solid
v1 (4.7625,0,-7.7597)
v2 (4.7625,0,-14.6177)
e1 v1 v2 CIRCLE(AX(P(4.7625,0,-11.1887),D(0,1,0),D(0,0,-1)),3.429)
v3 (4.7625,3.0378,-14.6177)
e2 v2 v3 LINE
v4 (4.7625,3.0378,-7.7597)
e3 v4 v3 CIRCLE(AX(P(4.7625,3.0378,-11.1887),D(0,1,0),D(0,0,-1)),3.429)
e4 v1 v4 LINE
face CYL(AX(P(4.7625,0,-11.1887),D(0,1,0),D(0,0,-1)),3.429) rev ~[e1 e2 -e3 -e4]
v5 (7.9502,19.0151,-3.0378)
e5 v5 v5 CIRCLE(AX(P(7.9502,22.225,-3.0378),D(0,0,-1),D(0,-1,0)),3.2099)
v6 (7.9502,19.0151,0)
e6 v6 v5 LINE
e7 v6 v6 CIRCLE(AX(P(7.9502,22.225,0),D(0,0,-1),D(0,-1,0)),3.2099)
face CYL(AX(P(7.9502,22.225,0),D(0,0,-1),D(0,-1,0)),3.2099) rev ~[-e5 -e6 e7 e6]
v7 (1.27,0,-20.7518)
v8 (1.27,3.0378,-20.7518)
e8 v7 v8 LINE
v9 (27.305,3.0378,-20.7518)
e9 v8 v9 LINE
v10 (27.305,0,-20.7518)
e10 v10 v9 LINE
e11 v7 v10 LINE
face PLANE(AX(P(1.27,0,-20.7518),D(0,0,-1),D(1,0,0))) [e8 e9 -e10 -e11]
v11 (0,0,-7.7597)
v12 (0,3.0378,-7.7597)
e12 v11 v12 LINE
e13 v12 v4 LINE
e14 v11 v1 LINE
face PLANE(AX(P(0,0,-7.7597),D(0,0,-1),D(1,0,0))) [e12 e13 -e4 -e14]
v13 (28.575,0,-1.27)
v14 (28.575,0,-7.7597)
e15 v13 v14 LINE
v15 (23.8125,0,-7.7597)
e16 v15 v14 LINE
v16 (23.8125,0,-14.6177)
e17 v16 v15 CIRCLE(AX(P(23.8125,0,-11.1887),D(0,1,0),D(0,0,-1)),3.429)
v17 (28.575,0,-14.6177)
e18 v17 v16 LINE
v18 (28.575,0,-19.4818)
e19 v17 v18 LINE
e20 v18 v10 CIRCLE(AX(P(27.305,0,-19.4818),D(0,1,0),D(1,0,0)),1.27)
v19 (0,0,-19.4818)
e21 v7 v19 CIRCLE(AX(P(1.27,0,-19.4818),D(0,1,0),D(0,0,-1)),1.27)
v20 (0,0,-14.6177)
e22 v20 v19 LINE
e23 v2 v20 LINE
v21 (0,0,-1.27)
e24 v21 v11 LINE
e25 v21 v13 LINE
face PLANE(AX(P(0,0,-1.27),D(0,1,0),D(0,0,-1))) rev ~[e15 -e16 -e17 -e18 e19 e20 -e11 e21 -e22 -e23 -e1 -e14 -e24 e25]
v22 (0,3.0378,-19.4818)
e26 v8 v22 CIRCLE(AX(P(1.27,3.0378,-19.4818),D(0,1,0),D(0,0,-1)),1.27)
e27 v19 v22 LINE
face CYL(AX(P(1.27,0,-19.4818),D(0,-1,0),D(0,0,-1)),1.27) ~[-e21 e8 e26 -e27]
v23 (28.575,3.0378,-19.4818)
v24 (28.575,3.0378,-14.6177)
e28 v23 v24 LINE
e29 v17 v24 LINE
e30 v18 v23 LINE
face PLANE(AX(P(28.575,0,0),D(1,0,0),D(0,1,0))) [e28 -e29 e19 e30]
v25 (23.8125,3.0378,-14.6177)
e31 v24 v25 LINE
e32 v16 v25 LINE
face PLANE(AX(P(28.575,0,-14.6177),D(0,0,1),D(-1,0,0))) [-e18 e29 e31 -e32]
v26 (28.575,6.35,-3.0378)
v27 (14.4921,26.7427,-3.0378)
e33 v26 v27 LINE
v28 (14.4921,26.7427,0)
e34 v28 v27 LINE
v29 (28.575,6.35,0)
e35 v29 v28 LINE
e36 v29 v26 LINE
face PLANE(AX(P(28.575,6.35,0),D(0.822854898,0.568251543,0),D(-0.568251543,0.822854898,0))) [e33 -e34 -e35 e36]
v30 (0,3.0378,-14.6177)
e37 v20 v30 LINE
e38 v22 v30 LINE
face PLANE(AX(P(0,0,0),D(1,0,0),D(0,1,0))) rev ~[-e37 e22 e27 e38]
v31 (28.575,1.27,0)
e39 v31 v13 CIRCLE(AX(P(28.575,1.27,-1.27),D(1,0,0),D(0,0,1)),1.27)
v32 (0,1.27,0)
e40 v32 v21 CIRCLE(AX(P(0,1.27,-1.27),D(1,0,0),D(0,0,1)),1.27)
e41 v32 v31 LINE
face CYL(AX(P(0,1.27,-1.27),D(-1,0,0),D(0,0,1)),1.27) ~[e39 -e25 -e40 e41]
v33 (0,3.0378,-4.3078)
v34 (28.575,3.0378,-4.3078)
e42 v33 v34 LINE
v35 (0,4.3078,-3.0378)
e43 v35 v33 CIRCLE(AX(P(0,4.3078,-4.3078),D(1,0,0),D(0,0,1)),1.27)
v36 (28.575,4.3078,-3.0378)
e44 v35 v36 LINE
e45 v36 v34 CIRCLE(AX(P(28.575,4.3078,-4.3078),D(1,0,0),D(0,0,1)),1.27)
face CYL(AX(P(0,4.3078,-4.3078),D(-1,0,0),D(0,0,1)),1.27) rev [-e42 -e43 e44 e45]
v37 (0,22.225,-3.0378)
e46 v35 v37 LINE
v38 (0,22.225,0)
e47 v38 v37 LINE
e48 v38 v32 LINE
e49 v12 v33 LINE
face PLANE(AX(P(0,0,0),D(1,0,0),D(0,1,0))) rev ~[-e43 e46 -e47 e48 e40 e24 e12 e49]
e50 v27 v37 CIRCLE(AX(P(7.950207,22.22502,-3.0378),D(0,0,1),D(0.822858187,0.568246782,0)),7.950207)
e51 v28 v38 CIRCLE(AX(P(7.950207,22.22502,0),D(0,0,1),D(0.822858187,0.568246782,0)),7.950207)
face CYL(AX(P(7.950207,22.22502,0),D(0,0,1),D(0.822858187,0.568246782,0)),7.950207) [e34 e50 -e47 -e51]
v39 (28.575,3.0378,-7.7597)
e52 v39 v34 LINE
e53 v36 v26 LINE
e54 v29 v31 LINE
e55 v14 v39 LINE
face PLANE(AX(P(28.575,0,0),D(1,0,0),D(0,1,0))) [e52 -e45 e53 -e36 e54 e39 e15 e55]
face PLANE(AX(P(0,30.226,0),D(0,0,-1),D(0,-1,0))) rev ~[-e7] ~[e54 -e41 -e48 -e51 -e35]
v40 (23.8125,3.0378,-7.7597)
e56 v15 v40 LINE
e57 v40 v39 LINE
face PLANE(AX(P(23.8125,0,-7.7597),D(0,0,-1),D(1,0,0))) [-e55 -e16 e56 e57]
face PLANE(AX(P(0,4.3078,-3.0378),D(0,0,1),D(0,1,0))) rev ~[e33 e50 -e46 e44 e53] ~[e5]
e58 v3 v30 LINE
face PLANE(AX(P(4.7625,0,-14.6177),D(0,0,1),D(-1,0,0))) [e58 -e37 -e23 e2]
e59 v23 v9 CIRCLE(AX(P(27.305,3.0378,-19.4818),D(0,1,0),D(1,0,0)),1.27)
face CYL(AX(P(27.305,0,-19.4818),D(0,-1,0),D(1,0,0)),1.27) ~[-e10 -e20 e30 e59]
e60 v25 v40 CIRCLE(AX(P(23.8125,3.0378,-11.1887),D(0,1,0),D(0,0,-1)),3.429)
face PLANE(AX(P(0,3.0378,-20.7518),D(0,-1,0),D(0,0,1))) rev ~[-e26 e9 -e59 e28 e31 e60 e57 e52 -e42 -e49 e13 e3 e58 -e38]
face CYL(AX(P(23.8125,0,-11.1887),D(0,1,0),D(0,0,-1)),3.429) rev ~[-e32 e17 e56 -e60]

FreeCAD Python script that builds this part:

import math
import FreeCAD as App
import Part
import Sketcher
from FreeCAD import Vector
Q = App.Units.Quantity

doc = App.newDocument("Part")
body = doc.addObject("PartDesign::Body", "Body")

sketch1 = body.newObject("Sketcher::SketchObject", "Sketch")
sketch1.AttachmentSupport = (doc.getObject("YZ_Plane"), [""])
sketch1.MapMode = "FlatFace"
sketch1.addGeometry(Part.LineSegment(Vector(30.226, -3.0378, 0), Vector(30.226, 0, 0)), False)
sketch1.addGeometry(Part.LineSegment(Vector(30.226, 0, 0), Vector(1.27, 0, 0)), False)
sketch1.addGeometry(Part.ArcOfCircle(Part.Circle(Vector(1.27, -1.27, 0), Vector(0, 0, 1), 1.27), math.radians(90), math.radians(180)), False)
sketch1.addGeometry(Part.LineSegment(Vector(0, -1.27, 0), Vector(0, -20.7518, 0)), False)
sketch1.addGeometry(Part.LineSegment(Vector(0, -20.7518, 0), Vector(3.0378, -20.7518, 0)), False)
sketch1.addGeometry(Part.LineSegment(Vector(3.0378, -20.7518, 0), Vector(3.0378, -4.3078, 0)), False)
sketch1.addGeometry(Part.ArcOfCircle(Part.Circle(Vector(4.3078, -4.3078, 0), Vector(0, 0, 1), 1.27), math.radians(90), math.radians(180)), False)
sketch1.addGeometry(Part.LineSegment(Vector(4.3078, -3.0378, 0), Vector(30.226, -3.0378, 0)), False)
sketch1.addConstraint(Sketcher.Constraint("Coincident", 0, 2, 1, 1))
sketch1.addConstraint(Sketcher.Constraint("Tangent", 1, 2, 2, 1))
sketch1.addConstraint(Sketcher.Constraint("Tangent", 2, 2, 3, 1))
sketch1.addConstraint(Sketcher.Constraint("Coincident", 3, 2, 4, 1))
sketch1.addConstraint(Sketcher.Constraint("Coincident", 4, 2, 5, 1))
sketch1.addConstraint(Sketcher.Constraint("Tangent", 5, 2, 6, 2))
sketch1.addConstraint(Sketcher.Constraint("Tangent", 6, 1, 7, 1))
sketch1.addConstraint(Sketcher.Constraint("Coincident", 7, 2, 0, 1))
sketch1.addConstraint(Sketcher.Constraint("Vertical", 0))
sketch1.addConstraint(Sketcher.Constraint("Horizontal", 1))
sketch1.addConstraint(Sketcher.Constraint("Vertical", 3))
sketch1.addConstraint(Sketcher.Constraint("Horizontal", 4))
sketch1.addConstraint(Sketcher.Constraint("Vertical", 5))
sketch1.addConstraint(Sketcher.Constraint("Horizontal", 7))
sketch1.addConstraint(Sketcher.Constraint("Equal", 2, 6))
sketch1.addConstraint(Sketcher.Constraint("PointOnObject", 0, 2, -1))
sketch1.addConstraint(Sketcher.Constraint("PointOnObject", 2, 2, -2))
sketch1.addConstraint(Sketcher.Constraint("Equal", 4, 0))
sketch1.addConstraint(Sketcher.Constraint("Radius", 2, Q("0.05 in")))
sketch1.addConstraint(Sketcher.Constraint("DistanceX", 1, 2, 1, 1, Q("1.14 in")))
sketch1.addConstraint(Sketcher.Constraint("DistanceY", 3, 2, 3, 1, Q("0.767 in")))
sketch1.addConstraint(Sketcher.Constraint("DistanceX", 4, 1, 4, 2, Q("0.1196 in")))
pad1 = body.newObject("PartDesign::Pad", "Pad")
pad1.Profile = sketch1
pad1.Length = Q("1.125 in")

sketch2 = body.newObject("Sketcher::SketchObject", "Sketch001")
sketch2.AttachmentSupport = (doc.getObject("XY_Plane"), [""])
sketch2.MapMode = "FlatFace"
sketch2.addGeometry(Part.LineSegment(Vector(-28.575, 45.339, 0), Vector(-28.575, -30.226, 0)), False)
sketch2.addGeometry(Part.LineSegment(Vector(-28.575, -30.226, 0), Vector(42.8625, -30.226, 0)), False)
sketch2.addGeometry(Part.LineSegment(Vector(42.8625, -30.226, 0), Vector(42.8625, 45.339, 0)), False)
sketch2.addGeometry(Part.LineSegment(Vector(42.8625, 45.339, 0), Vector(-28.575, 45.339, 0)), False)
sketch2.addGeometry(Part.LineSegment(Vector(28.575, 0, 0), Vector(0, 0, 0)), False)
sketch2.addGeometry(Part.LineSegment(Vector(0, 0, 0), Vector(0, 22.225, 0)), False)
sketch2.addGeometry(Part.ArcOfCircle(Part.Circle(Vector(7.9502, 22.225, 0), Vector(0, 0, 1), 7.950224), math.radians(34.628151), math.radians(180)), False)
sketch2.addGeometry(Part.LineSegment(Vector(14.4921, 26.7427, 0), Vector(28.575, 6.35, 0)), False)
sketch2.addGeometry(Part.LineSegment(Vector(28.575, 6.35, 0), Vector(28.575, 0, 0)), False)
sketch2.addConstraint(Sketcher.Constraint("Coincident", 0, 2, 1, 1))
sketch2.addConstraint(Sketcher.Constraint("Coincident", 1, 2, 2, 1))
sketch2.addConstraint(Sketcher.Constraint("Coincident", 2, 2, 3, 1))
sketch2.addConstraint(Sketcher.Constraint("Coincident", 3, 2, 0, 1))
sketch2.addConstraint(Sketcher.Constraint("Coincident", 4, 2, 5, 1))
sketch2.addConstraint(Sketcher.Constraint("Tangent", 5, 2, 6, 2))
sketch2.addConstraint(Sketcher.Constraint("Tangent", 6, 1, 7, 1))
sketch2.addConstraint(Sketcher.Constraint("Coincident", 7, 2, 8, 1))
sketch2.addConstraint(Sketcher.Constraint("Coincident", 8, 2, 4, 1))
sketch2.addConstraint(Sketcher.Constraint("Vertical", 0))
sketch2.addConstraint(Sketcher.Constraint("Horizontal", 1))
sketch2.addConstraint(Sketcher.Constraint("Vertical", 2))
sketch2.addConstraint(Sketcher.Constraint("Horizontal", 3))
sketch2.addConstraint(Sketcher.Constraint("Horizontal", 4))
sketch2.addConstraint(Sketcher.Constraint("Vertical", 5))
sketch2.addConstraint(Sketcher.Constraint("Vertical", 8))
sketch2.addConstraint(Sketcher.Constraint("Coincident", 4, 2, -1, 1))
sketch2.addConstraint(Sketcher.Constraint("Radius", 6, Q("0.313 in")))
sketch2.addConstraint(Sketcher.Constraint("DistanceY", 8, 2, 8, 1, Q("0.25 in")))
sketch2.addConstraint(Sketcher.Constraint("DistanceX", 1, 1, 1, 2, Q("2.8125 in")))
sketch2.addConstraint(Sketcher.Constraint("DistanceX", 4, 2, 4, 1, Q("1.125 in")))
sketch2.addConstraint(Sketcher.Constraint("DistanceY", 0, 2, 0, 1, Q("2.975 in")))
sketch2.addConstraint(Sketcher.Constraint("DistanceY", 5, 1, 5, 2, Q("0.875 in")))
sketch2.addConstraint(Sketcher.Constraint("DistanceY", 0, 2, -1, 1, Q("1.19 in")))
sketch2.addConstraint(Sketcher.Constraint("DistanceX", 0, 2, -1, 1, Q("1.125 in")))
pocket1 = body.newObject("PartDesign::Pocket", "Pocket")
pocket1.Profile = sketch2
pocket1.Length = Q("0.817 in")

sketch3 = body.newObject("Sketcher::SketchObject", "Sketch002")
sketch3.AttachmentSupport = (doc.getObject("XY_Plane"), [""])
sketch3.MapMode = "FlatFace"
sketch3.addGeometry(Part.Circle(Vector(7.9502, 22.225, 0), Vector(0, 0, 1), 3.2099), False)
sketch3.addConstraint(Sketcher.Constraint("Diameter", 0, 6.4198))
sketch3.addConstraint(Sketcher.Constraint("DistanceX", -1, 1, 0, 3, Q("0.313 in")))
sketch3.addConstraint(Sketcher.Constraint("DistanceY", -1, 1, 0, 3, Q("0.875 in")))
doc.recompute()
hole = body.newObject("PartDesign::Hole", "Hole")
hole.Profile = sketch3
hole.ThreadType = "None"
hole.Diameter = 6.4198
hole.DepthType = "Dimension"
hole.Depth = Q("0.1195984 in")
hole.DrillPoint = "Flat"

sketch4 = body.newObject("Sketcher::SketchObject", "Sketch003")
sketch4.AttachmentSupport = (doc.getObject("XZ_Plane"), [""])
sketch4.MapMode = "FlatFace"
sketch4.addGeometry(Part.Circle(Vector(4.7625, -11.1887, 0), Vector(0, 0, 1), 3.429), False)
sketch4.addConstraint(Sketcher.Constraint("Diameter", 0, Q("0.27 in")))
sketch4.addConstraint(Sketcher.Constraint("DistanceX", -1, 1, 0, 3, Q("0.1875 in")))
sketch4.addConstraint(Sketcher.Constraint("DistanceY", 0, 3, -1, 1, Q("0.4405 in")))
doc.recompute()
hole2 = body.newObject("PartDesign::Hole", "Hole001")
hole2.Profile = sketch4
hole2.ThreadType = "None"
hole2.Diameter = Q("0.27 in")
hole2.DepthType = "Dimension"
hole2.Depth = Q("0.1195984 in")
hole2.DrillPoint = "Flat"

sketch5 = body.newObject("Sketcher::SketchObject", "Sketch004")
sketch5.AttachmentSupport = (doc.getObject("XZ_Plane"), [""])
sketch5.MapMode = "FlatFace"
sketch5.addGeometry(Part.Circle(Vector(23.8125, -11.1887, 0), Vector(0, 0, 1), 3.429), False)
sketch5.addConstraint(Sketcher.Constraint("Diameter", 0, Q("0.27 in")))
sketch5.addConstraint(Sketcher.Constraint("DistanceX", -1, 1, 0, 3, Q("0.9375 in")))
sketch5.addConstraint(Sketcher.Constraint("DistanceY", 0, 3, -1, 1, Q("0.4405 in")))
doc.recompute()
hole3 = body.newObject("PartDesign::Hole", "Hole002")
hole3.Profile = sketch5
hole3.ThreadType = "None"
hole3.Diameter = Q("0.27 in")
hole3.DepthType = "Dimension"
hole3.Depth = Q("0.1195984 in")
hole3.DrillPoint = "Flat"

sketch6 = body.newObject("Sketcher::SketchObject", "Sketch005")
sketch6.AttachmentSupport = (doc.getObject("XZ_Plane"), [""])
sketch6.MapMode = "FlatFace"
sketch6.addGeometry(Part.LineSegment(Vector(4.7625, -14.6177, 0), Vector(0, -14.6177, 0)), False)
sketch6.addGeometry(Part.LineSegment(Vector(0, -14.6177, 0), Vector(0, -7.7597, 0)), False)
sketch6.addGeometry(Part.LineSegment(Vector(0, -7.7597, 0), Vector(4.7625, -7.7597, 0)), False)
sketch6.addGeometry(Part.LineSegment(Vector(4.7625, -7.7597, 0), Vector(4.7625, -14.6177, 0)), False)
sketch6.addConstraint(Sketcher.Constraint("Coincident", 0, 2, 1, 1))
sketch6.addConstraint(Sketcher.Constraint("Coincident", 1, 2, 2, 1))
sketch6.addConstraint(Sketcher.Constraint("Coincident", 2, 2, 3, 1))
sketch6.addConstraint(Sketcher.Constraint("Coincident", 3, 2, 0, 1))
sketch6.addConstraint(Sketcher.Constraint("Horizontal", 0))
sketch6.addConstraint(Sketcher.Constraint("Vertical", 1))
sketch6.addConstraint(Sketcher.Constraint("Horizontal", 2))
sketch6.addConstraint(Sketcher.Constraint("Vertical", 3))
sketch6.addConstraint(Sketcher.Constraint("PointOnObject", 0, 2, -2))
sketch6.addConstraint(Sketcher.Constraint("DistanceY", 1, 1, 1, 2, Q("0.27 in")))
sketch6.addConstraint(Sketcher.Constraint("DistanceX", 0, 2, 0, 1, Q("0.1875 in")))
sketch6.addConstraint(Sketcher.Constraint("DistanceY", 0, 2, -1, 1, Q("0.5755 in")))
pocket2 = body.newObject("PartDesign::Pocket", "Pocket001")
pocket2.Profile = sketch6
pocket2.Length = Q("0.1195984 in")

sketch7 = body.newObject("Sketcher::SketchObject", "Sketch006")
sketch7.AttachmentSupport = (doc.getObject("XZ_Plane"), [""])
sketch7.MapMode = "FlatFace"
sketch7.addGeometry(Part.LineSegment(Vector(28.575, -14.6177, 0), Vector(23.8125, -14.6177, 0)), False)
sketch7.addGeometry(Part.LineSegment(Vector(23.8125, -14.6177, 0), Vector(23.8125, -7.7597, 0)), False)
sketch7.addGeometry(Part.LineSegment(Vector(23.8125, -7.7597, 0), Vector(28.575, -7.7597, 0)), False)
sketch7.addGeometry(Part.LineSegment(Vector(28.575, -7.7597, 0), Vector(28.575, -14.6177, 0)), False)
sketch7.addConstraint(Sketcher.Constraint("Coincident", 0, 2, 1, 1))
sketch7.addConstraint(Sketcher.Constraint("Coincident", 1, 2, 2, 1))
sketch7.addConstraint(Sketcher.Constraint("Coincident", 2, 2, 3, 1))
sketch7.addConstraint(Sketcher.Constraint("Coincident", 3, 2, 0, 1))
sketch7.addConstraint(Sketcher.Constraint("Horizontal", 0))
sketch7.addConstraint(Sketcher.Constraint("Vertical", 1))
sketch7.addConstraint(Sketcher.Constraint("Horizontal", 2))
sketch7.addConstraint(Sketcher.Constraint("Vertical", 3))
sketch7.addConstraint(Sketcher.Constraint("DistanceY", 1, 1, 1, 2, Q("0.27 in")))
sketch7.addConstraint(Sketcher.Constraint("DistanceX", 0, 2, 0, 1, Q("0.1875 in")))
sketch7.addConstraint(Sketcher.Constraint("DistanceX", -1, 1, 0, 2, Q("0.9375 in")))
sketch7.addConstraint(Sketcher.Constraint("DistanceY", 0, 2, -1, 1, Q("0.5755 in")))
pocket3 = body.newObject("PartDesign::Pocket", "Pocket002")
pocket3.Profile = sketch7
pocket3.Length = Q("0.1195984 in")

sketch8 = body.newObject("Sketcher::SketchObject", "Sketch007")
sketch8.AttachmentSupport = (doc.getObject("XZ_Plane"), [""])
sketch8.MapMode = "FlatFace"
sketch8.addGeometry(Part.LineSegment(Vector(28.575, -31.1277, 0), Vector(0, -31.1277, 0)), False)
sketch8.addGeometry(Part.LineSegment(Vector(0, -31.1277, 0), Vector(0, -19.4818, 0)), False)
sketch8.addGeometry(Part.ArcOfCircle(Part.Circle(Vector(1.27, -19.4818, 0), Vector(0, 0, 1), 1.27), math.radians(180), math.radians(270)), False)
sketch8.addGeometry(Part.LineSegment(Vector(1.27, -20.7518, 0), Vector(27.305, -20.7518, 0)), False)
sketch8.addGeometry(Part.ArcOfCircle(Part.Circle(Vector(27.305, -19.4818, 0), Vector(0, 0, 1), 1.27), math.radians(-90), math.radians(0)), False)
sketch8.addGeometry(Part.LineSegment(Vector(28.575, -19.4818, 0), Vector(28.575, -31.1277, 0)), False)
sketch8.addConstraint(Sketcher.Constraint("Coincident", 0, 2, 1, 1))
sketch8.addConstraint(Sketcher.Constraint("Tangent", 1, 2, 2, 1))
sketch8.addConstraint(Sketcher.Constraint("Tangent", 2, 2, 3, 1))
sketch8.addConstraint(Sketcher.Constraint("Tangent", 3, 2, 4, 1))
sketch8.addConstraint(Sketcher.Constraint("Tangent", 4, 2, 5, 1))
sketch8.addConstraint(Sketcher.Constraint("Coincident", 5, 2, 0, 1))
sketch8.addConstraint(Sketcher.Constraint("Horizontal", 0))
sketch8.addConstraint(Sketcher.Constraint("Vertical", 1))
sketch8.addConstraint(Sketcher.Constraint("Horizontal", 3))
sketch8.addConstraint(Sketcher.Constraint("Vertical", 5))
sketch8.addConstraint(Sketcher.Constraint("Equal", 2, 4))
sketch8.addConstraint(Sketcher.Constraint("PointOnObject", 0, 2, -2))
sketch8.addConstraint(Sketcher.Constraint("Radius", 2, Q("0.05 in")))
sketch8.addConstraint(Sketcher.Constraint("DistanceX", 0, 2, 0, 1, Q("1.125 in")))
sketch8.addConstraint(Sketcher.Constraint("DistanceY", 1, 1, 1, 2, Q("0.4585 in")))
sketch8.addConstraint(Sketcher.Constraint("DistanceY", 2, 3, -1, 1, Q("0.767 in")))
pocket4 = body.newObject("PartDesign::Pocket", "Pocket003")
pocket4.Profile = sketch8
pocket4.Length = Q("0.1195984 in")

doc.recompute()
